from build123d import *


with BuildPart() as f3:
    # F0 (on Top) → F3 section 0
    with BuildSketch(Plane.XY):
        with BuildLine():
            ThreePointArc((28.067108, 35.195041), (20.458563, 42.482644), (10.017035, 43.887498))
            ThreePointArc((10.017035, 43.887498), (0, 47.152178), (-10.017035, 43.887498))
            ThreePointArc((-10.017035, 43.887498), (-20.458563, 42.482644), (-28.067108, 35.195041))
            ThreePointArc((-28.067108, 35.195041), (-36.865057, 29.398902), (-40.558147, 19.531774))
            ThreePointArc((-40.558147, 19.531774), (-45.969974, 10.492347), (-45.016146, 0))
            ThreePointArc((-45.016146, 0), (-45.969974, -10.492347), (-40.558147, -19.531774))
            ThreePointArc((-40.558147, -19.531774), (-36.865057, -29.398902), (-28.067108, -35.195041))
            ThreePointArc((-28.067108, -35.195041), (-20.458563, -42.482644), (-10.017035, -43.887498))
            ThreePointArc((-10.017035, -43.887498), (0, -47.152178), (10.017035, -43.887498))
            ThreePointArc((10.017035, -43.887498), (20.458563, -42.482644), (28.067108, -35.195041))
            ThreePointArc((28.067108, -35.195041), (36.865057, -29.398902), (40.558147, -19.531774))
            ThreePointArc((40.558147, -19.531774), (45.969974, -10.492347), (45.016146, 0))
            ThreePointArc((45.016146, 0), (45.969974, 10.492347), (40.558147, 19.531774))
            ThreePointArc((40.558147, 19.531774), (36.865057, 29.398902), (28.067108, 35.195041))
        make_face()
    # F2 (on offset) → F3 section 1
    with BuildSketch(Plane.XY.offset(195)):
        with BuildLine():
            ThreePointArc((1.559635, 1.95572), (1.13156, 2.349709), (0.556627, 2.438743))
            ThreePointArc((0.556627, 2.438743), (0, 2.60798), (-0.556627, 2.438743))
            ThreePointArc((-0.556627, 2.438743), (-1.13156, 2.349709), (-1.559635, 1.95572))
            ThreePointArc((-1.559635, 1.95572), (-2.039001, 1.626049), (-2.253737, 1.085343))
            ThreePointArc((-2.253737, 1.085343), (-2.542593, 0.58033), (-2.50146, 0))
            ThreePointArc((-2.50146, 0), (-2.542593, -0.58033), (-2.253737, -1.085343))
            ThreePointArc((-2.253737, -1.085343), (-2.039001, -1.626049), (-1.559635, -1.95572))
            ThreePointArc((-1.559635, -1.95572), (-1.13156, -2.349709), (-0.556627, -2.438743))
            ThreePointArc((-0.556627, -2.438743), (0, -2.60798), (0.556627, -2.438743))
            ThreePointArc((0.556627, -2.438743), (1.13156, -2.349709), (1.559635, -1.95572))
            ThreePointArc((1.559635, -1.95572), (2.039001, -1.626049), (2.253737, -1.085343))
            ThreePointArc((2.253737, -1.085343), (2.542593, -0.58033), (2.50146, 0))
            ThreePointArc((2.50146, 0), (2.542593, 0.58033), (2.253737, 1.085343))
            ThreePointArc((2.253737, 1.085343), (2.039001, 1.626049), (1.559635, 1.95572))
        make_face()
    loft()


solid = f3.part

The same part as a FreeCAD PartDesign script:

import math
import FreeCAD as App
import Part
import Sketcher

doc = App.newDocument("Part")
params = doc.addObject("Spreadsheet::Sheet", "Params")
for row, (alias, value) in enumerate([
    ("sketch1_radius", "17.000001 mm"),
    ("sketch2_radius", "1.000001 mm"),
], start=1):
    params.set(f"A{row}", alias)
    params.set(f"B{row}", "=" + value)
    params.setAlias(f"B{row}", alias)

body = doc.addObject("PartDesign::Body", "Body")

# Sketch on XY plane
sketch1 = doc.addObject("Sketcher::SketchObject", "Sketch")
body.addObject(sketch1)
sketch1.AttachmentSupport = (doc.XY_Plane, [""])
sketch1.MapMode = "FlatFace"
sketch1.addGeometry(Part.ArcOfCircle(Part.Circle(App.Vector(13, 27, 0), App.Vector(0, 0, 1), 17), math.radians(28), math.radians(100)), False)
sketch1.addGeometry(Part.ArcOfCircle(Part.Circle(App.Vector(0, 30, 0), App.Vector(0, 0, 1), 17), math.radians(54), math.radians(126)), False)
sketch1.addGeometry(Part.ArcOfCircle(Part.Circle(App.Vector(-13, 27, 0), App.Vector(0, 0, 1), 17), math.radians(80), math.radians(152)), False)
sketch1.addGeometry(Part.ArcOfCircle(Part.Circle(App.Vector(-24, 19, 0), App.Vector(0, 0, 1), 17), math.radians(105), math.radians(178)), False)
sketch1.addGeometry(Part.ArcOfCircle(Part.Circle(App.Vector(-29, 7, 0), App.Vector(0, 0, 1), 17), math.radians(131), math.radians(203)), False)
sketch1.addGeometry(Part.ArcOfCircle(Part.Circle(App.Vector(-29, -7, 0), App.Vector(0, 0, 1), 17), math.radians(157), math.radians(229)), False)
sketch1.addGeometry(Part.ArcOfCircle(Part.Circle(App.Vector(-24, -19, 0), App.Vector(0, 0, 1), 17), math.radians(-178), math.radians(-105)), False)
sketch1.addGeometry(Part.ArcOfCircle(Part.Circle(App.Vector(-13, -27, 0), App.Vector(0, 0, 1), 17), math.radians(-152), math.radians(-80)), False)
sketch1.addGeometry(Part.ArcOfCircle(Part.Circle(App.Vector(0, -30, 0), App.Vector(0, 0, 1), 17), math.radians(-126), math.radians(-54)), False)
sketch1.addGeometry(Part.ArcOfCircle(Part.Circle(App.Vector(13, -27, 0), App.Vector(0, 0, 1), 17), math.radians(-100), math.radians(-28)), False)
sketch1.addGeometry(Part.ArcOfCircle(Part.Circle(App.Vector(24, -19, 0), App.Vector(0, 0, 1), 17), math.radians(-75), math.radians(-2)), False)
sketch1.addGeometry(Part.ArcOfCircle(Part.Circle(App.Vector(29, -7, 0), App.Vector(0, 0, 1), 17), math.radians(-49), math.radians(23)), False)
sketch1.addGeometry(Part.ArcOfCircle(Part.Circle(App.Vector(29, 7, 0), App.Vector(0, 0, 1), 17), math.radians(-23), math.radians(49)), False)
sketch1.addGeometry(Part.ArcOfCircle(Part.Circle(App.Vector(24, 19, 0), App.Vector(0, 0, 1), 17), math.radians(2), math.radians(75)), False)
sketch1.addConstraint(Sketcher.Constraint("Coincident", 0, 2, 1, 1))
sketch1.addConstraint(Sketcher.Constraint("Coincident", 1, 2, 2, 1))
sketch1.addConstraint(Sketcher.Constraint("Coincident", 2, 2, 3, 1))
sketch1.addConstraint(Sketcher.Constraint("Coincident", 3, 2, 4, 1))
sketch1.addConstraint(Sketcher.Constraint("Coincident", 4, 2, 5, 1))
sketch1.addConstraint(Sketcher.Constraint("Coincident", 5, 2, 6, 1))
sketch1.addConstraint(Sketcher.Constraint("Coincident", 6, 2, 7, 1))
sketch1.addConstraint(Sketcher.Constraint("Coincident", 7, 2, 8, 1))
sketch1.addConstraint(Sketcher.Constraint("Coincident", 8, 2, 9, 1))
sketch1.addConstraint(Sketcher.Constraint("Coincident", 9, 2, 10, 1))
sketch1.addConstraint(Sketcher.Constraint("Coincident", 10, 2, 11, 1))
sketch1.addConstraint(Sketcher.Constraint("Coincident", 11, 2, 12, 1))
sketch1.addConstraint(Sketcher.Constraint("Coincident", 12, 2, 13, 1))
sketch1.addConstraint(Sketcher.Constraint("Coincident", 13, 2, 0, 1))
sketch1.addConstraint(Sketcher.Constraint("Equal", 0, 1))
sketch1.addConstraint(Sketcher.Constraint("Equal", 1, 2))
sketch1.addConstraint(Sketcher.Constraint("Equal", 2, 3))
sketch1.addConstraint(Sketcher.Constraint("Equal", 3, 4))
sketch1.addConstraint(Sketcher.Constraint("Equal", 4, 5))
sketch1.addConstraint(Sketcher.Constraint("Equal", 5, 6))
sketch1.addConstraint(Sketcher.Constraint("Equal", 6, 7))
sketch1.addConstraint(Sketcher.Constraint("Equal", 7, 8))
sketch1.addConstraint(Sketcher.Constraint("Equal", 8, 9))
sketch1.addConstraint(Sketcher.Constraint("Equal", 9, 10))
sketch1.addConstraint(Sketcher.Constraint("Equal", 10, 11))
sketch1.addConstraint(Sketcher.Constraint("Equal", 11, 12))
sketch1.addConstraint(Sketcher.Constraint("Equal", 12, 13))
sketch1.addConstraint(Sketcher.Constraint("Symmetric", 0, 3, 7, 3, -1, 1))
sketch1.addConstraint(Sketcher.Constraint("Symmetric", 1, 3, 8, 3, -1, 1))
sketch1.addConstraint(Sketcher.Constraint("Symmetric", 2, 3, 9, 3, -1, 1))
sketch1.addConstraint(Sketcher.Constraint("Symmetric", 3, 3, 10, 3, -1, 1))
sketch1.addConstraint(Sketcher.Constraint("Symmetric", 4, 3, 11, 3, -1, 1))
sketch1.addConstraint(Sketcher.Constraint("Symmetric", 5, 3, 12, 3, -1, 1))
sketch1.addConstraint(Sketcher.Constraint("Symmetric", 6, 3, 13, 3, -1, 1))
sketch1.addConstraint(Sketcher.Constraint("Symmetric", 0, 3, 2, 3, -2))
sketch1.addConstraint(Sketcher.Constraint("Symmetric", 6, 3, 10, 3, -2))
sketch1.addConstraint(Sketcher.Constraint("Symmetric", 5, 3, 11, 3, -2))
sketch1.addConstraint(Sketcher.Constraint("PointOnObject", 1, 3, -2))
sketch1.addConstraint(Sketcher.Constraint("Radius", 1, 17.000001))
sketch1.addConstraint(Sketcher.Constraint("DistanceX", 4, 2, 3, 2, 4.457999))
sketch1.addConstraint(Sketcher.Constraint("DistanceX", 4, 3, -1, 1, 29.396199))
sketch1.addConstraint(Sketcher.Constraint("DistanceY", 3, 3, 3, 2, 0.7322))
sketch1.addConstraint(Sketcher.Constraint("DistanceX", -1, 1, 0, 3, 13.082538))
sketch1.addConstraint(Sketcher.Constraint("DistanceY", -1, 1, 0, 3, 27.166171))
sketch1.addConstraint(Sketcher.Constraint("DistanceX", 3, 3, -1, 1, 23.57392))
sketch1.addConstraint(Sketcher.Constraint("DistanceY", 5, 3, 1, 3, 36.861668))
sketch1.setExpression("Constraints[38]", "Params.sketch1_radius")

# Sketch on XY plane
sketch2 = doc.addObject("Sketcher::SketchObject", "Sketch001")
body.addObject(sketch2)
sketch2.AttachmentSupport = (doc.XY_Plane, [""])
sketch2.MapMode = "FlatFace"
sketch2.AttachmentOffset = App.Placement(App.Vector(0, 0, 195), App.Rotation())
sketch2.addGeometry(Part.ArcOfCircle(Part.Circle(App.Vector(0.7, 1.4, 0), App.Vector(0, 0, 1), 1), math.radians(30), math.radians(98)), False)
sketch2.addGeometry(Part.ArcOfCircle(Part.Circle(App.Vector(0, 1.6, 0), App.Vector(0, 0, 1), 1), math.radians(56), math.radians(124)), False)
sketch2.addGeometry(Part.ArcOfCircle(Part.Circle(App.Vector(-0.7, 1.4, 0), App.Vector(0, 0, 1), 1), math.radians(82), math.radians(150)), False)
sketch2.addGeometry(Part.ArcOfCircle(Part.Circle(App.Vector(-1.3, 1, 0), App.Vector(0, 0, 1), 1), math.radians(108), math.radians(175)), False)
sketch2.addGeometry(Part.ArcOfCircle(Part.Circle(App.Vector(-1.6, 0.4, 0), App.Vector(0, 0, 1), 1), math.radians(133), math.radians(201)), False)
sketch2.addGeometry(Part.ArcOfCircle(Part.Circle(App.Vector(-1.6, -0.4, 0), App.Vector(0, 0, 1), 1), math.radians(159), math.radians(227)), False)
sketch2.addGeometry(Part.ArcOfCircle(Part.Circle(App.Vector(-1.3, -1, 0), App.Vector(0, 0, 1), 1), math.radians(-175), math.radians(-108)), False)
sketch2.addGeometry(Part.ArcOfCircle(Part.Circle(App.Vector(-0.7, -1.4, 0), App.Vector(0, 0, 1), 1), math.radians(-150), math.radians(-82)), False)
sketch2.addGeometry(Part.ArcOfCircle(Part.Circle(App.Vector(0, -1.6, 0), App.Vector(0, 0, 1), 1), math.radians(-124), math.radians(-56)), False)
sketch2.addGeometry(Part.ArcOfCircle(Part.Circle(App.Vector(0.7, -1.4, 0), App.Vector(0, 0, 1), 1), math.radians(-98), math.radians(-30)), False)
sketch2.addGeometry(Part.ArcOfCircle(Part.Circle(App.Vector(1.3, -1, 0), App.Vector(0, 0, 1), 1), math.radians(-72), math.radians(-5)), False)
sketch2.addGeometry(Part.ArcOfCircle(Part.Circle(App.Vector(1.6, -0.4, 0), App.Vector(0, 0, 1), 1), math.radians(-47), math.radians(21)), False)
sketch2.addGeometry(Part.ArcOfCircle(Part.Circle(App.Vector(1.6, 0.4, 0), App.Vector(0, 0, 1), 1), math.radians(-21), math.radians(47)), False)
sketch2.addGeometry(Part.ArcOfCircle(Part.Circle(App.Vector(1.3, 1, 0), App.Vector(0, 0, 1), 1), math.radians(5), math.radians(72)), False)
sketch2.addConstraint(Sketcher.Constraint("Coincident", 0, 2, 1, 1))
sketch2.addConstraint(Sketcher.Constraint("Coincident", 1, 2, 2, 1))
sketch2.addConstraint(Sketcher.Constraint("Coincident", 2, 2, 3, 1))
sketch2.addConstraint(Sketcher.Constraint("Coincident", 3, 2, 4, 1))
sketch2.addConstraint(Sketcher.Constraint("Coincident", 4, 2, 5, 1))
sketch2.addConstraint(Sketcher.Constraint("Coincident", 5, 2, 6, 1))
sketch2.addConstraint(Sketcher.Constraint("Coincident", 6, 2, 7, 1))
sketch2.addConstraint(Sketcher.Constraint("Coincident", 7, 2, 8, 1))
sketch2.addConstraint(Sketcher.Constraint("Coincident", 8, 2, 9, 1))
sketch2.addConstraint(Sketcher.Constraint("Coincident", 9, 2, 10, 1))
sketch2.addConstraint(Sketcher.Constraint("Coincident", 10, 2, 11, 1))
sketch2.addConstraint(Sketcher.Constraint("Coincident", 11, 2, 12, 1))
sketch2.addConstraint(Sketcher.Constraint("Coincident", 12, 2, 13, 1))
sketch2.addConstraint(Sketcher.Constraint("Coincident", 13, 2, 0, 1))
sketch2.addConstraint(Sketcher.Constraint("Equal", 0, 1))
sketch2.addConstraint(Sketcher.Constraint("Equal", 1, 2))
sketch2.addConstraint(Sketcher.Constraint("Equal", 2, 3))
sketch2.addConstraint(Sketcher.Constraint("Equal", 3, 4))
sketch2.addConstraint(Sketcher.Constraint("Equal", 4, 5))
sketch2.addConstraint(Sketcher.Constraint("Equal", 5, 6))
sketch2.addConstraint(Sketcher.Constraint("Equal", 6, 7))
sketch2.addConstraint(Sketcher.Constraint("Equal", 7, 8))
sketch2.addConstraint(Sketcher.Constraint("Equal", 8, 9))
sketch2.addConstraint(Sketcher.Constraint("Equal", 9, 10))
sketch2.addConstraint(Sketcher.Constraint("Equal", 10, 11))
sketch2.addConstraint(Sketcher.Constraint("Equal", 11, 12))
sketch2.addConstraint(Sketcher.Constraint("Equal", 12, 13))
sketch2.addConstraint(Sketcher.Constraint("Symmetric", 0, 3, 7, 3, -1, 1))
sketch2.addConstraint(Sketcher.Constraint("Symmetric", 1, 3, 8, 3, -1, 1))
sketch2.addConstraint(Sketcher.Constraint("Symmetric", 2, 3, 9, 3, -1, 1))
sketch2.addConstraint(Sketcher.Constraint("Symmetric", 3, 3, 10, 3, -1, 1))
sketch2.addConstraint(Sketcher.Constraint("Symmetric", 4, 3, 11, 3, -1, 1))
sketch2.addConstraint(Sketcher.Constraint("Symmetric", 5, 3, 12, 3, -1, 1))
sketch2.addConstraint(Sketcher.Constraint("Symmetric", 6, 3, 13, 3, -1, 1))
sketch2.addConstraint(Sketcher.Constraint("Symmetric", 0, 3, 2, 3, -2))
sketch2.addConstraint(Sketcher.Constraint("Symmetric", 6, 3, 10, 3, -2))
sketch2.addConstraint(Sketcher.Constraint("Symmetric", 5, 3, 11, 3, -2))
sketch2.addConstraint(Sketcher.Constraint("PointOnObject", 1, 3, -2))
sketch2.addConstraint(Sketcher.Constraint("Radius", 3, 1.000001))
sketch2.addConstraint(Sketcher.Constraint("DistanceX", 3, 3, -1, 1, 1.257168))
sketch2.addConstraint(Sketcher.Constraint("DistanceY", -1, 1, 3, 3, 1.002559))
sketch2.addConstraint(Sketcher.Constraint("DistanceY", -1, 1, 4, 3, 0.357809))
sketch2.addConstraint(Sketcher.Constraint("DistanceY", -1, 1, 2, 2, 1.95572))
sketch2.addConstraint(Sketcher.Constraint("DistanceX", 4, 2, -1, 1, 2.50146))
sketch2.addConstraint(Sketcher.Constraint("DistanceY", 0, 3, 1, 3, 0.15924))
sketch2.addConstraint(Sketcher.Constraint("DistanceX", 2, 3, 0, 3, 1.395351))
sketch2.setExpression("Constraints[38]", "Params.sketch2_radius")

additiveloft = doc.addObject("PartDesign::AdditiveLoft", "AdditiveLoft")
body.addObject(additiveloft)
additiveloft.Profile = sketch1
additiveloft.Sections = [sketch2]

doc.recompute()
